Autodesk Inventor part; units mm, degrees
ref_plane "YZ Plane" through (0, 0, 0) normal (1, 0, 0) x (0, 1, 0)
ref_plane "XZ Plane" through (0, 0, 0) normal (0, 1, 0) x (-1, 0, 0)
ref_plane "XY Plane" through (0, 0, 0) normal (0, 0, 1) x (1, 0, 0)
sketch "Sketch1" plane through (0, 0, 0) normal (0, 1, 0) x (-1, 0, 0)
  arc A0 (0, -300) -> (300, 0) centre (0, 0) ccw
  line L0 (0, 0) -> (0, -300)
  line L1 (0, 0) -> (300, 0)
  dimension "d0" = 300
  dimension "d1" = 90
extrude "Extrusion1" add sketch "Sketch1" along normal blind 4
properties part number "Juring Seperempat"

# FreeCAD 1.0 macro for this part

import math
import FreeCAD as App
import Part
import Sketcher

doc = App.newDocument("Part")
params = doc.addObject("Spreadsheet::Sheet", "Params")
for row, (alias, value) in enumerate([
    ("sketch1_radius", "300 mm"),
    ("pad1_length", "4 mm"),
], start=1):
    params.set(f"A{row}", alias)
    params.set(f"B{row}", "=" + value)
    params.setAlias(f"B{row}", alias)

body = doc.addObject("PartDesign::Body", "Body")

sketch1 = body.newObject("Sketcher::SketchObject", "Sketch")
sketch1.AttachmentSupport = (doc.getObject("XZ_Plane"), [""])
sketch1.MapMode = "FlatFace"
sketch1.addGeometry([
    Part.LineSegment(App.Vector(0, 0, 0), App.Vector(0, -300, 0)),
    Part.ArcOfCircle(Part.Circle(App.Vector(0, 0, 0), App.Vector(0, 0, 1), 300), math.radians(180), math.radians(270)),
    Part.LineSegment(App.Vector(-300, 0, 0), App.Vector(0, 0, 0)),
], False)
sketch1.addConstraint([
    Sketcher.Constraint("Coincident", 0, 2, 1, 2),
    Sketcher.Constraint("Coincident", 1, 1, 2, 1),
    Sketcher.Constraint("Coincident", 2, 2, 0, 1),
    Sketcher.Constraint("Vertical", 0),
    Sketcher.Constraint("Horizontal", 2),
    Sketcher.Constraint("Coincident", 1, 3, -1, 1),
    Sketcher.Constraint("Coincident", 2, 2, -1, 1),
    Sketcher.Constraint("Radius", 1, 300.0),
])
sketch1.setExpression("Constraints[7]", "Params.sketch1_radius")
pad1 = body.newObject("PartDesign::Pad", "Pad")
pad1.Profile = sketch1
pad1.setExpression("Length", "Params.pad1_length")
pad1.Reversed = True

doc.recompute()
